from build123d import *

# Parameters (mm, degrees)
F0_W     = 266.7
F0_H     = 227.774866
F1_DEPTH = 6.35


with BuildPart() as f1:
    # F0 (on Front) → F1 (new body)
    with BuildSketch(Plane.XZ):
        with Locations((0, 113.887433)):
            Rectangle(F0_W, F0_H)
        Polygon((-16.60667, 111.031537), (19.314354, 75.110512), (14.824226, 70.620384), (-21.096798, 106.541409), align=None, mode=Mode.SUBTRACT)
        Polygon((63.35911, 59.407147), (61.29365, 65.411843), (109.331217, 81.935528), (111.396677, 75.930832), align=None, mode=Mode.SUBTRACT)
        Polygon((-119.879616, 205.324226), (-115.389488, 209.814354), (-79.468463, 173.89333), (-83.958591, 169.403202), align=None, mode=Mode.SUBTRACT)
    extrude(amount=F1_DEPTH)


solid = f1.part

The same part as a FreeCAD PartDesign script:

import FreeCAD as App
import Part
import Sketcher
Q = App.Units.Quantity


def add_polygon(sketch, points):
    """Adds a closed chain of lines whose ends are joined by coincident constraints."""
    first, n = sketch.GeometryCount, len(points)
    for a, b in zip(points, points[1:] + points[:1]):
        sketch.addGeometry(Part.LineSegment(App.Vector(*a, 0), App.Vector(*b, 0)), False)
    for i in range(n):
        sketch.addConstraint(Sketcher.Constraint("Coincident", first + i, 2, first + (i + 1) % n, 1))

doc = App.newDocument("Part")
body = doc.addObject("PartDesign::Body", "Body")

sketch1 = doc.addObject("Sketcher::SketchObject", "Sketch")
body.addObject(sketch1)
sketch1.AttachmentSupport = (doc.XZ_Plane, [""])
sketch1.MapMode = "FlatFace"
add_polygon(sketch1, [(-133.35, 227.774866), (-133.35, 0), (133.35, 0), (133.35, 227.774866)])
add_polygon(sketch1, [(-21.096798, 106.541409), (-16.60667, 111.031537), (19.314354, 75.110512), (14.824226, 70.620384)])
add_polygon(sketch1, [(111.396677, 75.930832), (63.35911, 59.407147), (61.29365, 65.411843), (109.331217, 81.935528)])
add_polygon(sketch1, [(-83.958591, 169.403202), (-119.879616, 205.324226), (-115.389488, 209.814354), (-79.468463, 173.89333)])
sketch1.addConstraint(Sketcher.Constraint("Vertical", 0))
sketch1.addConstraint(Sketcher.Constraint("Horizontal", 1))
sketch1.addConstraint(Sketcher.Constraint("Vertical", 2))
sketch1.addConstraint(Sketcher.Constraint("Horizontal", 3))
sketch1.addConstraint(Sketcher.Constraint("Symmetric", 0, 2, 1, 2, -1, 1))
sketch1.addConstraint(Sketcher.Constraint("Perpendicular", 4, 5))
sketch1.addConstraint(Sketcher.Constraint("Perpendicular", 5, 6))
sketch1.addConstraint(Sketcher.Constraint("Perpendicular", 6, 7))
sketch1.addConstraint(Sketcher.Constraint("Perpendicular", 8, 9))
sketch1.addConstraint(Sketcher.Constraint("Perpendicular", 9, 10))
sketch1.addConstraint(Sketcher.Constraint("Perpendicular", 10, 11))
sketch1.addConstraint(Sketcher.Constraint("Parallel", 7, 12))
sketch1.addConstraint(Sketcher.Constraint("Perpendicular", 12, 13))
sketch1.addConstraint(Sketcher.Constraint("Perpendicular", 13, 14))
sketch1.addConstraint(Sketcher.Constraint("Perpendicular", 14, 15))
sketch1.addConstraint(Sketcher.Constraint("Equal", 7, 8))
sketch1.addConstraint(Sketcher.Constraint("Equal", 6, 9))
sketch1.addConstraint(Sketcher.Constraint("Equal", 10, 12))
sketch1.addConstraint(Sketcher.Constraint("Equal", 11, 13))
sketch1.addConstraint(Sketcher.Constraint("Distance", 5, Q("2 in")))
sketch1.addConstraint(Sketcher.Constraint("DistanceX", 1, 1, 1, 2, Q("10.5 in")))
sketch1.addConstraint(Sketcher.Constraint("Angle", 4, Q("45 deg")))
sketch1.addConstraint(Sketcher.Constraint("Distance", 4, Q("0.25 in")))
sketch1.addConstraint(Sketcher.Constraint("DistanceY", -1, 1, 15, 2, 169.403202))
sketch1.addConstraint(Sketcher.Constraint("DistanceX", 0, 2, 7, 2, 112.253202))
sketch1.addConstraint(Sketcher.Constraint("DistanceY", 0, 2, 0, 1, 227.774866))
sketch1.addConstraint(Sketcher.Constraint("DistanceY", -1, 1, 5, 2, 75.110512))
sketch1.addConstraint(Sketcher.Constraint("DistanceX", -1, 1, 8, 2, 63.35911))
sketch1.addConstraint(Sketcher.Constraint("DistanceX", -1, 1, 9, 2, 61.29365))
sketch1.addConstraint(Sketcher.Constraint("DistanceY", -1, 1, 10, 2, 81.935528))
sketch1.addConstraint(Sketcher.Constraint("DistanceX", 13, 2, -1, 1, 115.389488))
pad1 = doc.addObject("PartDesign::Pad", "Pad")
body.addObject(pad1)
pad1.Profile = sketch1
pad1.Length = Q("0.25 in")

doc.recompute()
